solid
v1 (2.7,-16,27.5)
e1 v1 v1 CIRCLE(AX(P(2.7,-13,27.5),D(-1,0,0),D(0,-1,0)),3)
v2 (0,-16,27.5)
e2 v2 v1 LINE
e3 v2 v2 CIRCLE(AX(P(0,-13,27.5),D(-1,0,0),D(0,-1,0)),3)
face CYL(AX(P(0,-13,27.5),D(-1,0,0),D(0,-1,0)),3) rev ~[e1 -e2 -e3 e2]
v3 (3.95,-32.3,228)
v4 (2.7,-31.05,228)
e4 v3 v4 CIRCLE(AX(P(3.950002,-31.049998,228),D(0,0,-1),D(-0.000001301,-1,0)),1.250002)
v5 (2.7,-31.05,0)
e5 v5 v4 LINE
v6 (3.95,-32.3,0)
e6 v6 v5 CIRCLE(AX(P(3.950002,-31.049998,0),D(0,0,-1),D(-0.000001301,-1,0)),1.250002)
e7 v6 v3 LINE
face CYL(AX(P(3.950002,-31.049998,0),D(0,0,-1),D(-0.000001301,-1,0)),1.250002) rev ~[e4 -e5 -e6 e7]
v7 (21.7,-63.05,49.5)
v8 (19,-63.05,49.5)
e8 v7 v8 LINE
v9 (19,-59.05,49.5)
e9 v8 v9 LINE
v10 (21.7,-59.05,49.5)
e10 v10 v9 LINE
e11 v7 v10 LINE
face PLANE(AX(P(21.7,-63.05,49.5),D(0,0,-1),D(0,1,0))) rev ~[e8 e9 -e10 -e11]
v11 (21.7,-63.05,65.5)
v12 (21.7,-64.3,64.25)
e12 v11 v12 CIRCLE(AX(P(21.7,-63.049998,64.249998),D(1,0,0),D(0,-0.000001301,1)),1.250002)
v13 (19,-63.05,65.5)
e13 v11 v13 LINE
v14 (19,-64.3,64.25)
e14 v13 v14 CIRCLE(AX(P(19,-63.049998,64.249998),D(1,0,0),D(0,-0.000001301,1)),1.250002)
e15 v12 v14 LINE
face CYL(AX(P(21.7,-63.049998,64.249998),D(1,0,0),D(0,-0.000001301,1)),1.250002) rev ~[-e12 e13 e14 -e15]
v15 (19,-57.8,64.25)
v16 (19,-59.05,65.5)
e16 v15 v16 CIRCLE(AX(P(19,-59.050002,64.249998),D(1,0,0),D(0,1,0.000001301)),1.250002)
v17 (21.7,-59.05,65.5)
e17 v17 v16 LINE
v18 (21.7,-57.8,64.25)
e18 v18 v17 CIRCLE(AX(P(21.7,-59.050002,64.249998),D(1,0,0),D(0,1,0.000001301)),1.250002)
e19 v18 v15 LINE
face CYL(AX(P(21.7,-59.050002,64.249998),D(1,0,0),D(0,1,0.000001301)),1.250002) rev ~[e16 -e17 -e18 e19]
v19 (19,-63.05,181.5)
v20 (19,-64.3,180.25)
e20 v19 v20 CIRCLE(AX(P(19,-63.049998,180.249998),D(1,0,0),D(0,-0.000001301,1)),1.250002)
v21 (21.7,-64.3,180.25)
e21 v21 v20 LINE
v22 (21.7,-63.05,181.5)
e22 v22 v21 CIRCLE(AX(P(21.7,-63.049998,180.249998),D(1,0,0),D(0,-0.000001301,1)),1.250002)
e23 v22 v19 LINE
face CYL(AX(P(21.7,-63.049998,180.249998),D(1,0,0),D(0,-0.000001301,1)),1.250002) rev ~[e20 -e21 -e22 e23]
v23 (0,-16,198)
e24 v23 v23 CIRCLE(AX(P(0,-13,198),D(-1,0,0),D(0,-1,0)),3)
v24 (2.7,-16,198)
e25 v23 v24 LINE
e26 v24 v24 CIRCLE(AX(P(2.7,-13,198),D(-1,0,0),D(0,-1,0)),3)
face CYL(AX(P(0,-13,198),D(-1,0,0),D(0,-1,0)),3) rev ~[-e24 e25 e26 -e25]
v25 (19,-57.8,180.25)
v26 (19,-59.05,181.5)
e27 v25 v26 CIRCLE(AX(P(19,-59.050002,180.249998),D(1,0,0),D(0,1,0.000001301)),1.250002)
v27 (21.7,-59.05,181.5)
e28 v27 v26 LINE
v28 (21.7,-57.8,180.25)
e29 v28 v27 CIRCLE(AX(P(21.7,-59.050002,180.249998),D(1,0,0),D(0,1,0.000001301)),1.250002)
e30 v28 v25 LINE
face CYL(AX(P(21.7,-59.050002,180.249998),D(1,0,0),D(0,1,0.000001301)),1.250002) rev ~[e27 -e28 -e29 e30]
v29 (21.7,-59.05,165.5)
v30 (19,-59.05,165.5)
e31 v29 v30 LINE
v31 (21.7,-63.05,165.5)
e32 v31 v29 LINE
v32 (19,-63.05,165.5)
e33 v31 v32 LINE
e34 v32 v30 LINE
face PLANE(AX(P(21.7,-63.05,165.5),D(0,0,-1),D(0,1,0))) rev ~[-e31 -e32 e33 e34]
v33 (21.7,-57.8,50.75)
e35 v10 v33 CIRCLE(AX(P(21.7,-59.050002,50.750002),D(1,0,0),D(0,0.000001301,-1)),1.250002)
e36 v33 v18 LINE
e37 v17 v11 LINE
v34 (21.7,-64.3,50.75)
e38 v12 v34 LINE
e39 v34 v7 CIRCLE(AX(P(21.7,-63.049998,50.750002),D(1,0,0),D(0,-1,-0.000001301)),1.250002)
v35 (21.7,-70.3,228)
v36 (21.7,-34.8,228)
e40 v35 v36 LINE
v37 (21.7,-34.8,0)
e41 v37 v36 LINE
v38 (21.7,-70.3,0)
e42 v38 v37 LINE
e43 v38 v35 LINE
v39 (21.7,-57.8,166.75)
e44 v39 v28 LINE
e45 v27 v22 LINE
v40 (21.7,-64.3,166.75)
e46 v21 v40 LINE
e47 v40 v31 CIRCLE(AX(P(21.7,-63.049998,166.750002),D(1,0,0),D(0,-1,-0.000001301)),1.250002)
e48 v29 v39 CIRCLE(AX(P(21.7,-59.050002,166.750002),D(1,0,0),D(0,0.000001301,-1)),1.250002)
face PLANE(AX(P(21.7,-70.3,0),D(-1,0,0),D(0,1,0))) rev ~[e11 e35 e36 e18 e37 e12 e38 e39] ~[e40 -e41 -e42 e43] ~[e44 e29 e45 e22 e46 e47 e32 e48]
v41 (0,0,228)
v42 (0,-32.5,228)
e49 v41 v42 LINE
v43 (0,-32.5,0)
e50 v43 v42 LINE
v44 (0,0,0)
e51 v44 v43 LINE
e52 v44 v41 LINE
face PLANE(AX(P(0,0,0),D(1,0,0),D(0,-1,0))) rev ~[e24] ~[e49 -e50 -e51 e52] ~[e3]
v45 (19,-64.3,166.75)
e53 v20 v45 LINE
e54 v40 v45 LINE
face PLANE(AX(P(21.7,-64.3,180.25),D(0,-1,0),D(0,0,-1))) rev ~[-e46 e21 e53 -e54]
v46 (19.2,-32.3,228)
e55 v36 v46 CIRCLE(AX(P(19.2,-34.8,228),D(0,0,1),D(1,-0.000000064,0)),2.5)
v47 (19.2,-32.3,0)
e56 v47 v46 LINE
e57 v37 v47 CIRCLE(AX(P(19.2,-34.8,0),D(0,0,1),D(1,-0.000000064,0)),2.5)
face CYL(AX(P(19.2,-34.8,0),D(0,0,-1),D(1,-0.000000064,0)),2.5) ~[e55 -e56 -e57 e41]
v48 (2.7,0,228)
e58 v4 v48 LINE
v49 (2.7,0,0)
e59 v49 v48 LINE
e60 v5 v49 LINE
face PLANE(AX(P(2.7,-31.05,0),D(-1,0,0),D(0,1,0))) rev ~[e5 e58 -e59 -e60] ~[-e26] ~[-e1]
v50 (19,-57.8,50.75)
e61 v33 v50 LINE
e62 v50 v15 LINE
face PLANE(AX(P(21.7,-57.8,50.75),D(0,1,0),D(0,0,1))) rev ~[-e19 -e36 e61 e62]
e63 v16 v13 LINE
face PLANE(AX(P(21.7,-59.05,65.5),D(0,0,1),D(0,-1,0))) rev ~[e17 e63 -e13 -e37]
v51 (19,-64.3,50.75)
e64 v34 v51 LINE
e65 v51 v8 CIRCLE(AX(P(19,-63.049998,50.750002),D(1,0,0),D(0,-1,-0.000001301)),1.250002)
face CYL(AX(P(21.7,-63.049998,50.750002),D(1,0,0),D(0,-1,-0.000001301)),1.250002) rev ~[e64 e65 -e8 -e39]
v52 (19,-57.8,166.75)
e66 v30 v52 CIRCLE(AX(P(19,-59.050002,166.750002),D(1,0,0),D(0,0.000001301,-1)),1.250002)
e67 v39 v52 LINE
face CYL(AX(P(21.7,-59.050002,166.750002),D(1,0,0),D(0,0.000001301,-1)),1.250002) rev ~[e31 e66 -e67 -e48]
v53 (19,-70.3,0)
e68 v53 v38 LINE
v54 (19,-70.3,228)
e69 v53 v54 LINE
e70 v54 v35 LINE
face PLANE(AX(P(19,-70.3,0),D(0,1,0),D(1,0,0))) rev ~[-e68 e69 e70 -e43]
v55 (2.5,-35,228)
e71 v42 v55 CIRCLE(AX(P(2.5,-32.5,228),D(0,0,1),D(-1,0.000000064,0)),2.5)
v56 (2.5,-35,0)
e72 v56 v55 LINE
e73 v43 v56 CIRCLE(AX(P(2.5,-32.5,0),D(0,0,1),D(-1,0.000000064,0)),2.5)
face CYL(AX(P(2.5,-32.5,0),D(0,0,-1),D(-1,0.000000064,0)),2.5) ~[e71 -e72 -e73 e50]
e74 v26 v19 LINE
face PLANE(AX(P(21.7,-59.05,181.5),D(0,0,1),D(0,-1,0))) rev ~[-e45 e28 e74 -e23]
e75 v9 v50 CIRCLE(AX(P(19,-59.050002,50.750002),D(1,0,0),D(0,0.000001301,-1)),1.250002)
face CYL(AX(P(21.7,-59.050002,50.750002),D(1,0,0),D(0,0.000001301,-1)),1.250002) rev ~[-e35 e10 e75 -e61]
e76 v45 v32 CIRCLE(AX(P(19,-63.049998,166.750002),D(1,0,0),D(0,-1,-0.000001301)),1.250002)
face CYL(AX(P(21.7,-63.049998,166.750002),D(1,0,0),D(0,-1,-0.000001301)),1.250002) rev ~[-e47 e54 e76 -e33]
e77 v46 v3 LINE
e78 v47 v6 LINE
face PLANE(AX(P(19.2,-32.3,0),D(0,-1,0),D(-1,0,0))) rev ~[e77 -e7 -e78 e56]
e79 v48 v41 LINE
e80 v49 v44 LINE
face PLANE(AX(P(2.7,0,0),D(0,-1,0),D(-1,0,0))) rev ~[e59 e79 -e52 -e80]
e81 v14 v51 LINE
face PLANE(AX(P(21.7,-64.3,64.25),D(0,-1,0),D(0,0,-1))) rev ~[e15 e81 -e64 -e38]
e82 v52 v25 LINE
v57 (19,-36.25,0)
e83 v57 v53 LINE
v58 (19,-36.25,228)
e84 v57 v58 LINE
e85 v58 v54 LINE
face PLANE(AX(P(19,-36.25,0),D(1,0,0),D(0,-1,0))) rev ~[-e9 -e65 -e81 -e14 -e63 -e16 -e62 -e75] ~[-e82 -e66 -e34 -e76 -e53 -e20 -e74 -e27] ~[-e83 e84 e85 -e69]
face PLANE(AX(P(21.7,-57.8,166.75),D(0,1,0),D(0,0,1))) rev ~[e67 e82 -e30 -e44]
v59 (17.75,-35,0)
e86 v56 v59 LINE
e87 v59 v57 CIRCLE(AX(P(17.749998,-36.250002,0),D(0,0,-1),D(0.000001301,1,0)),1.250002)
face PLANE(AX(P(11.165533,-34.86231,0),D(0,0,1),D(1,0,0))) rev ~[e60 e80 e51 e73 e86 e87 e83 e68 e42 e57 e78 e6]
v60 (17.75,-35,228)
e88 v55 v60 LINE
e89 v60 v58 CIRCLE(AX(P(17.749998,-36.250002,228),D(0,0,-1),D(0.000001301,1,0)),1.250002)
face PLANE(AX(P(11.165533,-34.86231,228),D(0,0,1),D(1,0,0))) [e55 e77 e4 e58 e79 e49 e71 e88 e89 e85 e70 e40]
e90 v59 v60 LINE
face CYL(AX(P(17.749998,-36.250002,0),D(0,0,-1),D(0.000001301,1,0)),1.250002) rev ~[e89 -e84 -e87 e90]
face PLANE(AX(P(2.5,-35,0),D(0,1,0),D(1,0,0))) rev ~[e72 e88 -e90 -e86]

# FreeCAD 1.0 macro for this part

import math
import FreeCAD as App
import Part
import Sketcher
from FreeCAD import Vector
Q = App.Units.Quantity

doc = App.newDocument("Part")
body = doc.addObject("PartDesign::Body", "Body")

# Sketch on XY plane
sketch1 = doc.addObject("Sketcher::SketchObject", "Sketch")
body.addObject(sketch1)
sketch1.AttachmentSupport = (doc.XY_Plane, [""])
sketch1.MapMode = "FlatFace"
sketch1.addGeometry(Part.LineSegment(Vector(2.7, 0, 0), Vector(0, 0, 0)), False)
sketch1.addGeometry(Part.LineSegment(Vector(0, 0, 0), Vector(0, -32.5, 0)), False)
sketch1.addGeometry(Part.ArcOfCircle(Part.Circle(Vector(2.5, -32.5, 0), Vector(0, 0, 1), 2.5), math.radians(180), math.radians(270)), False)
sketch1.addGeometry(Part.LineSegment(Vector(2.5, -35, 0), Vector(17.8, -35, 0)), False)
sketch1.addGeometry(Part.ArcOfCircle(Part.Circle(Vector(17.7, -36.3, 0), Vector(0, 0, 1), 1.3), math.radians(0), math.radians(90)), False)
sketch1.addGeometry(Part.LineSegment(Vector(19, -36.2, 0), Vector(19, -70.3, 0)), False)
sketch1.addGeometry(Part.LineSegment(Vector(19, -70.3, 0), Vector(21.7, -70.3, 0)), False)
sketch1.addGeometry(Part.LineSegment(Vector(21.7, -70.3, 0), Vector(21.7, -34.8, 0)), False)
sketch1.addGeometry(Part.ArcOfCircle(Part.Circle(Vector(19.2, -34.8, 0), Vector(0, 0, 1), 2.5), math.radians(0), math.radians(90)), False)
sketch1.addGeometry(Part.LineSegment(Vector(19.2, -32.3, 0), Vector(4, -32.3, 0)), False)
sketch1.addGeometry(Part.ArcOfCircle(Part.Circle(Vector(4, -31, 0), Vector(0, 0, 1), 1.3), math.radians(-180), math.radians(-90)), False)
sketch1.addGeometry(Part.LineSegment(Vector(2.7, -31.1, 0), Vector(2.7, 0, 0)), False)
sketch1.addConstraint(Sketcher.Constraint("Coincident", 0, 2, 1, 1))
sketch1.addConstraint(Sketcher.Constraint("Tangent", 1, 2, 2, 1))
sketch1.addConstraint(Sketcher.Constraint("Tangent", 2, 2, 3, 1))
sketch1.addConstraint(Sketcher.Constraint("Tangent", 3, 2, 4, 2))
sketch1.addConstraint(Sketcher.Constraint("Tangent", 4, 1, 5, 1))
sketch1.addConstraint(Sketcher.Constraint("Coincident", 5, 2, 6, 1))
sketch1.addConstraint(Sketcher.Constraint("Coincident", 6, 2, 7, 1))
sketch1.addConstraint(Sketcher.Constraint("Tangent", 7, 2, 8, 1))
sketch1.addConstraint(Sketcher.Constraint("Tangent", 8, 2, 9, 1))
sketch1.addConstraint(Sketcher.Constraint("Tangent", 9, 2, 10, 2))
sketch1.addConstraint(Sketcher.Constraint("Tangent", 10, 1, 11, 1))
sketch1.addConstraint(Sketcher.Constraint("Coincident", 11, 2, 0, 1))
sketch1.addConstraint(Sketcher.Constraint("Horizontal", 0))
sketch1.addConstraint(Sketcher.Constraint("Vertical", 1))
sketch1.addConstraint(Sketcher.Constraint("Horizontal", 3))
sketch1.addConstraint(Sketcher.Constraint("Vertical", 5))
sketch1.addConstraint(Sketcher.Constraint("Horizontal", 6))
sketch1.addConstraint(Sketcher.Constraint("Vertical", 7))
sketch1.addConstraint(Sketcher.Constraint("Horizontal", 9))
sketch1.addConstraint(Sketcher.Constraint("Vertical", 11))
sketch1.addConstraint(Sketcher.Constraint("Coincident", 0, 2, -1, 1))
sketch1.addConstraint(Sketcher.Constraint("Equal", 2, 8))
sketch1.addConstraint(Sketcher.Constraint("Equal", 4, 10))
sketch1.addConstraint(Sketcher.Constraint("Equal", 0, 6))
sketch1.addConstraint(Sketcher.Constraint("Radius", 2, Q("2.5 mm")))
sketch1.addConstraint(Sketcher.Constraint("Radius", 4, Q("1.250002 mm")))
sketch1.addConstraint(Sketcher.Constraint("DistanceX", 0, 2, 0, 1, Q("2.7 mm")))
sketch1.addConstraint(Sketcher.Constraint("DistanceY", 1, 2, 1, 1, Q("32.5 mm")))
sketch1.addConstraint(Sketcher.Constraint("DistanceY", 7, 1, 7, 2, Q("35.5 mm")))
sketch1.addConstraint(Sketcher.Constraint("DistanceX", -1, 1, 4, 1, Q("19 mm")))
sketch1.addConstraint(Sketcher.Constraint("DistanceY", 5, 2, 5, 1, Q("34.05 mm")))
pad1 = doc.addObject("PartDesign::Pad", "Pad")
body.addObject(pad1)
pad1.Profile = sketch1
pad1.Length = 228

# Sketch on YZ plane
sketch2 = doc.addObject("Sketcher::SketchObject", "Sketch001")
body.addObject(sketch2)
sketch2.AttachmentSupport = (doc.YZ_Plane, [""])
sketch2.MapMode = "FlatFace"
sketch2.addGeometry(Part.Circle(Vector(-13, 198, 0), Vector(0, 0, 1), 3), False)
sketch2.addGeometry(Part.Circle(Vector(-13, 27.5, 0), Vector(0, 0, 1), 3), False)
sketch2.addConstraint(Sketcher.Constraint("Equal", 0, 1))
sketch2.addConstraint(Sketcher.Constraint("Vertical", 0, 3, 1, 3))
sketch2.addConstraint(Sketcher.Constraint("Diameter", 0, Q("6 mm")))
sketch2.addConstraint(Sketcher.Constraint("DistanceX", 0, 3, -1, 1, Q("13 mm")))
sketch2.addConstraint(Sketcher.Constraint("DistanceY", -1, 1, 0, 3, Q("198 mm")))
sketch2.addConstraint(Sketcher.Constraint("DistanceY", -1, 1, 1, 3, Q("27.5 mm")))
pocket1 = doc.addObject("PartDesign::Pocket", "Pocket")
body.addObject(pocket1)
pocket1.Profile = sketch2
pocket1.Length = 2.7
pocket1.Reversed = True

# Sketch on YZ plane
sketch3 = doc.addObject("Sketcher::SketchObject", "Sketch002")
body.addObject(sketch3)
sketch3.AttachmentSupport = (doc.YZ_Plane, [""])
sketch3.MapMode = "FlatFace"
sketch3.AttachmentOffset = App.Placement(Vector(0, 0, 21.7), App.Rotation())
sketch3.addGeometry(Part.ArcOfCircle(Part.Circle(Vector(-59.1, 64.2, 0), Vector(0, 0, 1), 1.3), math.radians(0), math.radians(90)), False)
sketch3.addGeometry(Part.LineSegment(Vector(-59, 65.5, 0), Vector(-63, 65.5, 0)), False)
sketch3.addGeometry(Part.ArcOfCircle(Part.Circle(Vector(-63, 64.2, 0), Vector(0, 0, 1), 1.3), math.radians(90), math.radians(180)), False)
sketch3.addGeometry(Part.LineSegment(Vector(-64.3, 64.2, 0), Vector(-64.3, 50.8, 0)), False)
sketch3.addGeometry(Part.ArcOfCircle(Part.Circle(Vector(-63, 50.8, 0), Vector(0, 0, 1), 1.3), math.radians(-180), math.radians(-90)), False)
sketch3.addGeometry(Part.LineSegment(Vector(-63, 49.5, 0), Vector(-59, 49.5, 0)), False)
sketch3.addGeometry(Part.ArcOfCircle(Part.Circle(Vector(-59.1, 50.8, 0), Vector(0, 0, 1), 1.3), math.radians(-90), math.radians(0)), False)
sketch3.addGeometry(Part.LineSegment(Vector(-57.8, 50.8, 0), Vector(-57.8, 64.2, 0)), False)
sketch3.addGeometry(Part.ArcOfCircle(Part.Circle(Vector(-59.1, 180.2, 0), Vector(0, 0, 1), 1.3), math.radians(0), math.radians(90)), False)
sketch3.addGeometry(Part.LineSegment(Vector(-59, 181.5, 0), Vector(-63, 181.5, 0)), False)
sketch3.addGeometry(Part.ArcOfCircle(Part.Circle(Vector(-63, 180.2, 0), Vector(0, 0, 1), 1.3), math.radians(90), math.radians(180)), False)
sketch3.addGeometry(Part.LineSegment(Vector(-64.3, 180.2, 0), Vector(-64.3, 166.8, 0)), False)
sketch3.addGeometry(Part.ArcOfCircle(Part.Circle(Vector(-63, 166.8, 0), Vector(0, 0, 1), 1.3), math.radians(-180), math.radians(-90)), False)
sketch3.addGeometry(Part.LineSegment(Vector(-63, 165.5, 0), Vector(-59, 165.5, 0)), False)
sketch3.addGeometry(Part.ArcOfCircle(Part.Circle(Vector(-59.1, 166.8, 0), Vector(0, 0, 1), 1.3), math.radians(-90), math.radians(0)), False)
sketch3.addGeometry(Part.LineSegment(Vector(-57.8, 166.8, 0), Vector(-57.8, 180.2, 0)), False)
sketch3.addConstraint(Sketcher.Constraint("Tangent", 0, 2, 1, 1))
sketch3.addConstraint(Sketcher.Constraint("Tangent", 1, 2, 2, 1))
sketch3.addConstraint(Sketcher.Constraint("Tangent", 2, 2, 3, 1))
sketch3.addConstraint(Sketcher.Constraint("Tangent", 3, 2, 4, 1))
sketch3.addConstraint(Sketcher.Constraint("Tangent", 4, 2, 5, 1))
sketch3.addConstraint(Sketcher.Constraint("Tangent", 5, 2, 6, 1))
sketch3.addConstraint(Sketcher.Constraint("Tangent", 6, 2, 7, 1))
sketch3.addConstraint(Sketcher.Constraint("Tangent", 7, 2, 0, 1))
sketch3.addConstraint(Sketcher.Constraint("Tangent", 8, 2, 9, 1))
sketch3.addConstraint(Sketcher.Constraint("Tangent", 9, 2, 10, 1))
sketch3.addConstraint(Sketcher.Constraint("Tangent", 10, 2, 11, 1))
sketch3.addConstraint(Sketcher.Constraint("Tangent", 11, 2, 12, 1))
sketch3.addConstraint(Sketcher.Constraint("Tangent", 12, 2, 13, 1))
sketch3.addConstraint(Sketcher.Constraint("Tangent", 13, 2, 14, 1))
sketch3.addConstraint(Sketcher.Constraint("Tangent", 14, 2, 15, 1))
sketch3.addConstraint(Sketcher.Constraint("Tangent", 15, 2, 8, 1))
sketch3.addConstraint(Sketcher.Constraint("Horizontal", 1))
sketch3.addConstraint(Sketcher.Constraint("Vertical", 3))
sketch3.addConstraint(Sketcher.Constraint("Horizontal", 5))
sketch3.addConstraint(Sketcher.Constraint("Vertical", 7))
sketch3.addConstraint(Sketcher.Constraint("Horizontal", 9))
sketch3.addConstraint(Sketcher.Constraint("Vertical", 11))
sketch3.addConstraint(Sketcher.Constraint("Horizontal", 13))
sketch3.addConstraint(Sketcher.Constraint("Vertical", 15))
sketch3.addConstraint(Sketcher.Constraint("Equal", 0, 2))
sketch3.addConstraint(Sketcher.Constraint("Equal", 2, 4))
sketch3.addConstraint(Sketcher.Constraint("Equal", 4, 6))
sketch3.addConstraint(Sketcher.Constraint("Equal", 6, 8))
sketch3.addConstraint(Sketcher.Constraint("Equal", 8, 10))
sketch3.addConstraint(Sketcher.Constraint("Equal", 10, 12))
sketch3.addConstraint(Sketcher.Constraint("Equal", 12, 14))
sketch3.addConstraint(Sketcher.Constraint("Vertical", 6, 3, 8, 3))
sketch3.addConstraint(Sketcher.Constraint("Vertical", 4, 3, 10, 3))
sketch3.addConstraint(Sketcher.Constraint("Equal", 7, 11))
sketch3.addConstraint(Sketcher.Constraint("DistanceX", 1, 2, 1, 1, Q("4 mm")))
sketch3.addConstraint(Sketcher.Constraint("Radius", 0, Q("1.250002 mm")))
sketch3.addConstraint(Sketcher.Constraint("DistanceY", 3, 2, 3, 1, Q("13.5 mm")))
sketch3.addConstraint(Sketcher.Constraint("DistanceY", 0, 3, 8, 3, Q("116 mm")))
sketch3.addConstraint(Sketcher.Constraint("DistanceY", -1, 1, 0, 2, Q("65.5 mm")))
sketch3.addConstraint(Sketcher.Constraint("DistanceX", 2, 2, -1, 1, Q("64.3 mm")))
pocket2 = doc.addObject("PartDesign::Pocket", "Pocket001")
body.addObject(pocket2)
pocket2.Profile = sketch3
pocket2.Length = 2.7

doc.recompute()
